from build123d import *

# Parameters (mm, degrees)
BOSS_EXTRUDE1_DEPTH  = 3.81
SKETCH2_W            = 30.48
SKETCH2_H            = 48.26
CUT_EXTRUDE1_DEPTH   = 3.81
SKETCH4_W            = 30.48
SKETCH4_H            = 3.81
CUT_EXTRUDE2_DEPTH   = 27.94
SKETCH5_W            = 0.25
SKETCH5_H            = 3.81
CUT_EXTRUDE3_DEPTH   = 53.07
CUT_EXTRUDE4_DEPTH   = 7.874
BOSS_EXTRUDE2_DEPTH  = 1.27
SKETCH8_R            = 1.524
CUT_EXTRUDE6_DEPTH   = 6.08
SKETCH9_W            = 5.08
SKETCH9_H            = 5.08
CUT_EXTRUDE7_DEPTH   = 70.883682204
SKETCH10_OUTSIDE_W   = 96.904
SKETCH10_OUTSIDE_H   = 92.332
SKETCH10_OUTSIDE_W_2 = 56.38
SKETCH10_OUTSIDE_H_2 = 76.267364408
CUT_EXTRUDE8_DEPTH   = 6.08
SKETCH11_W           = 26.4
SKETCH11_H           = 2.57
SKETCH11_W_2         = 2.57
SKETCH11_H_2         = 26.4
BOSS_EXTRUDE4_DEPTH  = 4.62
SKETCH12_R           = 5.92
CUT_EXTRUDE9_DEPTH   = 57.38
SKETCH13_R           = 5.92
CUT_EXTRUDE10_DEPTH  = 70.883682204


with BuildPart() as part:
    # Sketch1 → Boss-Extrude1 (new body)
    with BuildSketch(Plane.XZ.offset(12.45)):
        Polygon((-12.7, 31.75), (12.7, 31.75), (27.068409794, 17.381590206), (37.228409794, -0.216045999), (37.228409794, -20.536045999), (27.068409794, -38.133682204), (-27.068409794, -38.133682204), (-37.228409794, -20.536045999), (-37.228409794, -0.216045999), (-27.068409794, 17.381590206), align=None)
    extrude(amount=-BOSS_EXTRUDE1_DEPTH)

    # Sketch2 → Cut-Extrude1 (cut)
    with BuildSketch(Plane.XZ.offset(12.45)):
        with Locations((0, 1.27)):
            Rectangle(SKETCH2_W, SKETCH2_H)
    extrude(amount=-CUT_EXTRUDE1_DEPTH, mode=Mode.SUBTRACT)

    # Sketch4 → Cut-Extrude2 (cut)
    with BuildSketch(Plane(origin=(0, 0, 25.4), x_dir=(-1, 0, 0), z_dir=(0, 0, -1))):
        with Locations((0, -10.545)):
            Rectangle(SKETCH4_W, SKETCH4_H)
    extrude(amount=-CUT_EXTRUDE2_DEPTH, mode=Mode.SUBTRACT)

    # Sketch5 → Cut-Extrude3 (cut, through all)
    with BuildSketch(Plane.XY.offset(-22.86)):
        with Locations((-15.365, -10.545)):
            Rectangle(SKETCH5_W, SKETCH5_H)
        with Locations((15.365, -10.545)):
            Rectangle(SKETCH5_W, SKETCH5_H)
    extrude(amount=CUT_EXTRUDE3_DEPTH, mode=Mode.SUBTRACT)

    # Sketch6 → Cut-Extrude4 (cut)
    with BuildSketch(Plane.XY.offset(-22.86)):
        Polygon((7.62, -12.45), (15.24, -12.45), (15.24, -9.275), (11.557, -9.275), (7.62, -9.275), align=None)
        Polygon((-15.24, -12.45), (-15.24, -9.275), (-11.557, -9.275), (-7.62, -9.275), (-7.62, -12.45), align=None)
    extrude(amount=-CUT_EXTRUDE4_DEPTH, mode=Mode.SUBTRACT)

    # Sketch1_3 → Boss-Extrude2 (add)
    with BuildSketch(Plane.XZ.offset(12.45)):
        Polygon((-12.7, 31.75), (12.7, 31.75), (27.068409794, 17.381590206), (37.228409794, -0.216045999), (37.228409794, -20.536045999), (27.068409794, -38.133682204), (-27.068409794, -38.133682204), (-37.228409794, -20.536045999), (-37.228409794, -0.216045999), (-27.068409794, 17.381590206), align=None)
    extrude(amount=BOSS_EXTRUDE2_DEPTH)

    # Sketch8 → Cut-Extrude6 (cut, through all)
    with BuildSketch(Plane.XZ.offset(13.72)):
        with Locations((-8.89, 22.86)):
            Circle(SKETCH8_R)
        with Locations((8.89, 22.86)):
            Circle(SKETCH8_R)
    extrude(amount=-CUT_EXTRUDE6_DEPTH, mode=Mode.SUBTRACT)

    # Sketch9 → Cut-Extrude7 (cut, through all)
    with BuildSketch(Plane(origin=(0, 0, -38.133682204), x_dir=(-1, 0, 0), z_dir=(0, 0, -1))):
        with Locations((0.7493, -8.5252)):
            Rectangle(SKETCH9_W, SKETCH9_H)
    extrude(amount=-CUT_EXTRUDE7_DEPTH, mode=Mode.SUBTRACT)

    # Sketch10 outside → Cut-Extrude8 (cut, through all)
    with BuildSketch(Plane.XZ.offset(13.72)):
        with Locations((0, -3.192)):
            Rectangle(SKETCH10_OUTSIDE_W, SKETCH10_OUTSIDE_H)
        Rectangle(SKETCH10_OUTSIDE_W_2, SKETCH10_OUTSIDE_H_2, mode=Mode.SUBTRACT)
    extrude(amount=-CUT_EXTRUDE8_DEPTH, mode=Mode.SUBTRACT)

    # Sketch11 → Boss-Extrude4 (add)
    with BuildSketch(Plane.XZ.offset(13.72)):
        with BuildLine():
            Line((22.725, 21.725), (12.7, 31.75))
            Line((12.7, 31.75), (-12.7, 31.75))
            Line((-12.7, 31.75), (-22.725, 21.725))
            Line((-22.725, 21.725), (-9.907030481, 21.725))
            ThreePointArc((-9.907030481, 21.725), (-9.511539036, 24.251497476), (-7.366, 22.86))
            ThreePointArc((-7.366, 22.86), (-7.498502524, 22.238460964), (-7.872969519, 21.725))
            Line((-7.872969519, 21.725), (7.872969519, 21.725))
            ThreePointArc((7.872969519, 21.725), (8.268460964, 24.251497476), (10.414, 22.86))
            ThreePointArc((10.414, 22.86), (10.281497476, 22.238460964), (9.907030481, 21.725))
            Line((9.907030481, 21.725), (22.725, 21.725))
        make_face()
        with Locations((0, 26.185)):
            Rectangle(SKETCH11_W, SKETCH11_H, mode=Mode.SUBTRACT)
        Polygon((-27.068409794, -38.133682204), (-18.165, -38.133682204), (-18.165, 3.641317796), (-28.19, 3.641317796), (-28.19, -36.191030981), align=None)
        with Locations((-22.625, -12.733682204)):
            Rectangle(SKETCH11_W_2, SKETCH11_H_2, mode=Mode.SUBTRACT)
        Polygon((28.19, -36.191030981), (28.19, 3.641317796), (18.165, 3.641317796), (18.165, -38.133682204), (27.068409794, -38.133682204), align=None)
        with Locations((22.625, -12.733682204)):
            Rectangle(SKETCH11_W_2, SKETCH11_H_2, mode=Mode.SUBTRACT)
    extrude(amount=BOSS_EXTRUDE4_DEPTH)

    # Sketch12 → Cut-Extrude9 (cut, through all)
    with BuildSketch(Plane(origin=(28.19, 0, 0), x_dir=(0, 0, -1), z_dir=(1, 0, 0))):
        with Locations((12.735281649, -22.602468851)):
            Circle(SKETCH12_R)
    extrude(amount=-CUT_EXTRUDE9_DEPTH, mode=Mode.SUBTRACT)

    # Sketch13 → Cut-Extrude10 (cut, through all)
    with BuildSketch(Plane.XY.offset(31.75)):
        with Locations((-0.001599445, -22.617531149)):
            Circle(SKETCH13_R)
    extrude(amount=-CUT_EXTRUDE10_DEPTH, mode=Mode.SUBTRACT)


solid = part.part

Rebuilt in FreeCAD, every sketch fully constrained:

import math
import FreeCAD as App
import Part
import Sketcher

V = App.Vector
Q = App.Units.Quantity


def add_polygon(sketch, points):
    """Adds a closed chain of lines whose ends are joined by coincident constraints."""
    first, n = sketch.GeometryCount, len(points)
    for a, b in zip(points, points[1:] + points[:1]):
        sketch.addGeometry(Part.LineSegment(App.Vector(*a, 0), App.Vector(*b, 0)), False)
    for i in range(n):
        sketch.addConstraint(Sketcher.Constraint("Coincident", first + i, 2, first + (i + 1) % n, 1))

doc = App.newDocument("Part")
params = doc.addObject("Spreadsheet::Sheet", "Params")
for row, (alias, value) in enumerate([
    ("sketch1_width", "1 in"),
    ("sketch1_height", "0.8 in"),
    ("sketch1_length", "0.8 in"),
    ("pad1_length", "0.15 in"),
    ("sketch2_width", "1.2 in"),
    ("sketch2_height", "1.9 in"),
    ("pocket1_length", "0.15 in"),
    ("sketch3_width", "1.2 in"),
    ("sketch3_height", "0.15 in"),
    ("pocket2_length", "1.1 in"),
    ("sketch4_height", "0.15 in"),
    ("sketch5_width", "0.3 in"),
    ("sketch5_height", "0.125 in"),
    ("pocket4_length", "0.31 in"),
    ("sketch6_width", "1 in"),
    ("sketch6_height", "0.8 in"),
    ("sketch6_length", "0.8 in"),
    ("pad2_length", "0.05 in"),
    ("sketch7_diameter", "0.12 in"),
    ("sketch8_width", "0.2 in"),
    ("sketch10_width", "1 in"),
    ("sketch10_radius", "0.06 in"),
    ("pad3_length", "4.62 mm"),
], start=1):
    params.set(f"A{row}", alias)
    params.set(f"B{row}", "=" + value)
    params.setAlias(f"B{row}", alias)

body = doc.addObject("PartDesign::Body", "Body")

sketch1 = body.newObject("Sketcher::SketchObject", "Sketch")
sketch1.AttachmentSupport = (doc.getObject("XZ_Plane"), [""])
sketch1.MapMode = "FlatFace"
sketch1.AttachmentOffset = App.Placement(V(0, 0, 12.45), App.Rotation())
add_polygon(sketch1, [(12.7, 31.75), (-12.7, 31.75), (-27.06841, 17.38159), (-37.22841, -0.216046), (-37.22841, -20.536046), (-27.06841, -38.133682), (27.06841, -38.133682), (37.22841, -20.536046), (37.22841, -0.216046), (27.06841, 17.38159)])
sketch1.addConstraint([
    Sketcher.Constraint("Horizontal", 0),
    Sketcher.Constraint("Vertical", 3),
    Sketcher.Constraint("Horizontal", 5),
    Sketcher.Constraint("Vertical", 7),
    Sketcher.Constraint("Symmetric", 3, 2, 6, 2, -2),
    Sketcher.Constraint("Symmetric", 1, 2, 8, 2, -2),
    Sketcher.Constraint("Parallel", 2, 6),
    Sketcher.Constraint("Parallel", 4, 8),
    Sketcher.Constraint("Perpendicular", 1, 9),
    Sketcher.Constraint("Horizontal", 2, 2, 7, 2),
    Sketcher.Constraint("Vertical", 1, 2, 4, 2),
    Sketcher.Constraint("Equal", 1, 2),
    Sketcher.Constraint("Equal", 8, 9),
    Sketcher.Constraint("DistanceX", 0, 2, 0, 1, Q("1 in")),
    Sketcher.Constraint("DistanceY", 3, 2, 3, 1, Q("0.8 in")),
    Sketcher.Constraint("Angle", 2, Q("-120 deg")),
    Sketcher.Constraint("Distance", 1, Q("0.8 in")),
    Sketcher.Constraint("DistanceY", -1, 1, 0, 2, Q("1.25 in")),
])
sketch1.setExpression("Constraints[23]", "Params.sketch1_width")
sketch1.setExpression("Constraints[24]", "Params.sketch1_height")
sketch1.setExpression("Constraints[26]", "Params.sketch1_length")
pad1 = body.newObject("PartDesign::Pad", "Pad")
pad1.Profile = sketch1
pad1.setExpression("Length", "Params.pad1_length")
pad1.Reversed = True

sketch2 = body.newObject("Sketcher::SketchObject", "Sketch001")
sketch2.AttachmentSupport = (doc.getObject("XZ_Plane"), [""])
sketch2.MapMode = "FlatFace"
sketch2.AttachmentOffset = App.Placement(V(0, 0, 12.45), App.Rotation())
add_polygon(sketch2, [(-15.24, 25.4), (-15.24, -22.86), (15.24, -22.86), (15.24, 25.4)])
sketch2.addConstraint([
    Sketcher.Constraint("Vertical", 0),
    Sketcher.Constraint("Horizontal", 1),
    Sketcher.Constraint("Vertical", 2),
    Sketcher.Constraint("Horizontal", 3),
    Sketcher.Constraint("DistanceX", 1, 1, 1, 2, Q("1.2 in")),
    Sketcher.Constraint("DistanceY", 0, 2, 0, 1, Q("1.9 in")),
    Sketcher.Constraint("DistanceY", -1, 1, 2, 2, Q("1 in")),
    Sketcher.Constraint("DistanceX", 0, 2, -1, 1, Q("0.6 in")),
])
sketch2.setExpression("Constraints[8]", "Params.sketch2_width")
sketch2.setExpression("Constraints[9]", "Params.sketch2_height")
pocket1 = body.newObject("PartDesign::Pocket", "Pocket")
pocket1.Profile = sketch2
pocket1.setExpression("Length", "Params.pocket1_length")

sketch3 = body.newObject("Sketcher::SketchObject", "Sketch002")
sketch3.AttachmentSupport = (doc.getObject("XY_Plane"), [""])
sketch3.MapMode = "FlatFace"
sketch3.AttachmentOffset = App.Placement(V(0, 0, 1 * 25.4), App.Rotation())
add_polygon(sketch3, [(15.24, -8.64), (15.24, -12.45), (-15.24, -12.45), (-15.24, -8.64)])
sketch3.addConstraint([
    Sketcher.Constraint("Vertical", 0),
    Sketcher.Constraint("Horizontal", 1),
    Sketcher.Constraint("Vertical", 2),
    Sketcher.Constraint("Horizontal", 3),
    Sketcher.Constraint("DistanceX", 1, 2, 1, 1, Q("1.2 in")),
    Sketcher.Constraint("DistanceY", 0, 2, 0, 1, Q("0.15 in")),
    Sketcher.Constraint("DistanceX", -1, 1, 0, 2, Q("0.6 in")),
    Sketcher.Constraint("DistanceY", 0, 2, -1, 1, 12.45),
])
sketch3.setExpression("Constraints[8]", "Params.sketch3_width")
sketch3.setExpression("Constraints[9]", "Params.sketch3_height")
pocket2 = body.newObject("PartDesign::Pocket", "Pocket001")
pocket2.Profile = sketch3
pocket2.setExpression("Length", "Params.pocket2_length")
pocket2.Reversed = True

sketch4 = body.newObject("Sketcher::SketchObject", "Sketch003")
sketch4.AttachmentSupport = (doc.getObject("XY_Plane"), [""])
sketch4.MapMode = "FlatFace"
sketch4.AttachmentOffset = App.Placement(V(0, 0, -0.9 * 25.4), App.Rotation())
add_polygon(sketch4, [(-15.49, -8.64), (-15.49, -12.45), (-15.24, -12.45), (-15.24, -8.64)])
add_polygon(sketch4, [(15.24, -8.64), (15.24, -12.45), (15.49, -12.45), (15.49, -8.64)])
sketch4.addConstraint([
    Sketcher.Constraint("Vertical", 0),
    Sketcher.Constraint("Horizontal", 1),
    Sketcher.Constraint("Vertical", 2),
    Sketcher.Constraint("Horizontal", 3),
    Sketcher.Constraint("Vertical", 4),
    Sketcher.Constraint("Horizontal", 5),
    Sketcher.Constraint("Vertical", 6),
    Sketcher.Constraint("Horizontal", 7),
    Sketcher.Constraint("Symmetric", 1, 2, 4, 2, -2),
    Sketcher.Constraint("Symmetric", 3, 2, 6, 2, -2),
    Sketcher.Constraint("DistanceY", 0, 2, 0, 1, Q("0.15 in")),
    Sketcher.Constraint("DistanceX", 1, 2, -1, 1, Q("0.6 in")),
    Sketcher.Constraint("DistanceX", 1, 1, 1, 2, 0.25),
    Sketcher.Constraint("DistanceY", 0, 2, -1, 1, 12.45),
])
sketch4.setExpression("Constraints[18]", "Params.sketch4_height")
pocket3 = body.newObject("PartDesign::Pocket", "Pocket002")
pocket3.Profile = sketch4
pocket3.Type = "ThroughAll"
pocket3.Reversed = True

sketch5 = body.newObject("Sketcher::SketchObject", "Sketch004")
sketch5.AttachmentSupport = (doc.getObject("XY_Plane"), [""])
sketch5.MapMode = "FlatFace"
sketch5.AttachmentOffset = App.Placement(V(0, 0, -0.9 * 25.4), App.Rotation())
add_polygon(sketch5, [(7.62, -12.45), (15.24, -12.45), (15.24, -9.275), (7.62, -9.275)])
add_polygon(sketch5, [(-15.24, -9.275), (-15.24, -12.45), (-7.62, -12.45), (-7.62, -9.275)])
sketch5.addConstraint([
    Sketcher.Constraint("Horizontal", 0),
    Sketcher.Constraint("Vertical", 1),
    Sketcher.Constraint("Horizontal", 2),
    Sketcher.Constraint("Vertical", 3),
    Sketcher.Constraint("Vertical", 4),
    Sketcher.Constraint("Horizontal", 5),
    Sketcher.Constraint("Vertical", 6),
    Sketcher.Constraint("Horizontal", 7),
    Sketcher.Constraint("Symmetric", 0, 2, 4, 2, -2),
    Sketcher.Constraint("Symmetric", 2, 2, 6, 2, -2),
    Sketcher.Constraint("DistanceX", 0, 1, 0, 2, Q("0.3 in")),
    Sketcher.Constraint("DistanceX", -1, 1, 0, 2, Q("0.6 in")),
    Sketcher.Constraint("DistanceY", 1, 1, 1, 2, Q("0.125 in")),
    Sketcher.Constraint("DistanceY", 0, 2, -1, 1, 12.45),
])
sketch5.setExpression("Constraints[18]", "Params.sketch5_width")
sketch5.setExpression("Constraints[20]", "Params.sketch5_height")
pocket4 = body.newObject("PartDesign::Pocket", "Pocket003")
pocket4.Profile = sketch5
pocket4.setExpression("Length", "Params.pocket4_length")

sketch6 = body.newObject("Sketcher::SketchObject", "Sketch005")
sketch6.AttachmentSupport = (doc.getObject("XZ_Plane"), [""])
sketch6.MapMode = "FlatFace"
sketch6.AttachmentOffset = App.Placement(V(0, 0, 12.45), App.Rotation())
add_polygon(sketch6, [(12.7, 31.75), (-12.7, 31.75), (-27.06841, 17.38159), (-37.22841, -0.216046), (-37.22841, -20.536046), (-27.06841, -38.133682), (27.06841, -38.133682), (37.22841, -20.536046), (37.22841, -0.216046), (27.06841, 17.38159)])
sketch6.addConstraint([
    Sketcher.Constraint("Horizontal", 0),
    Sketcher.Constraint("Vertical", 3),
    Sketcher.Constraint("Horizontal", 5),
    Sketcher.Constraint("Vertical", 7),
    Sketcher.Constraint("Symmetric", 3, 2, 6, 2, -2),
    Sketcher.Constraint("Symmetric", 1, 2, 8, 2, -2),
    Sketcher.Constraint("Parallel", 2, 6),
    Sketcher.Constraint("Parallel", 4, 8),
    Sketcher.Constraint("Perpendicular", 1, 9),
    Sketcher.Constraint("Horizontal", 2, 2, 7, 2),
    Sketcher.Constraint("Vertical", 1, 2, 4, 2),
    Sketcher.Constraint("Equal", 1, 2),
    Sketcher.Constraint("Equal", 8, 9),
    Sketcher.Constraint("DistanceX", 0, 2, 0, 1, Q("1 in")),
    Sketcher.Constraint("DistanceY", 3, 2, 3, 1, Q("0.8 in")),
    Sketcher.Constraint("Angle", 2, Q("-120 deg")),
    Sketcher.Constraint("Distance", 1, Q("0.8 in")),
    Sketcher.Constraint("DistanceY", -1, 1, 0, 2, Q("1.25 in")),
])
sketch6.setExpression("Constraints[23]", "Params.sketch6_width")
sketch6.setExpression("Constraints[24]", "Params.sketch6_height")
sketch6.setExpression("Constraints[26]", "Params.sketch6_length")
pad2 = body.newObject("PartDesign::Pad", "Pad001")
pad2.Profile = sketch6
pad2.setExpression("Length", "Params.pad2_length")

sketch7 = body.newObject("Sketcher::SketchObject", "Sketch006")
sketch7.AttachmentSupport = (doc.getObject("XZ_Plane"), [""])
sketch7.MapMode = "FlatFace"
sketch7.AttachmentOffset = App.Placement(V(0, 0, 13.72), App.Rotation())
sketch7.addGeometry([
    Part.Circle(V(-8.89, 22.86, 0), V(0, 0, 1), 1.524),
    Part.Circle(V(8.89, 22.86, 0), V(0, 0, 1), 1.524),
], False)
sketch7.addConstraint([
    Sketcher.Constraint("Equal", 0, 1),
    Sketcher.Constraint("Symmetric", 0, 3, 1, 3, -2),
    Sketcher.Constraint("Diameter", 0, Q("0.12 in")),
    Sketcher.Constraint("DistanceY", -1, 1, 0, 3, Q("0.9 in")),
    Sketcher.Constraint("DistanceX", 0, 3, 1, 3, Q("0.7 in")),
])
sketch7.setExpression("Constraints[2]", "Params.sketch7_diameter")
pocket5 = body.newObject("PartDesign::Pocket", "Pocket004")
pocket5.Profile = sketch7
pocket5.Type = "ThroughAll"

sketch8 = body.newObject("Sketcher::SketchObject", "Sketch007")
sketch8.AttachmentSupport = (doc.getObject("XY_Plane"), [""])
sketch8.MapMode = "FlatFace"
sketch8.AttachmentOffset = App.Placement(V(0, 0, -38.133682), App.Rotation())
add_polygon(sketch8, [(1.7907, -5.9852), (1.7907, -11.0652), (-3.2893, -11.0652), (-3.2893, -5.9852)])
sketch8.addConstraint([
    Sketcher.Constraint("Vertical", 0),
    Sketcher.Constraint("Horizontal", 1),
    Sketcher.Constraint("Vertical", 2),
    Sketcher.Constraint("Horizontal", 3),
    Sketcher.Constraint("Equal", 3, 0),
    Sketcher.Constraint("DistanceX", 1, 2, 1, 1, Q("0.2 in")),
    Sketcher.Constraint("DistanceX", -1, 1, 0, 2, Q("0.0705 in")),
    Sketcher.Constraint("DistanceY", 0, 2, -1, 1, 11.0652),
])
sketch8.setExpression("Constraints[9]", "Params.sketch8_width")
pocket6 = body.newObject("PartDesign::Pocket", "Pocket005")
pocket6.Profile = sketch8
pocket6.Type = "ThroughAll"
pocket6.Reversed = True

sketch9 = body.newObject("Sketcher::SketchObject", "Sketch008")
sketch9.AttachmentSupport = (doc.getObject("XZ_Plane"), [""])
sketch9.MapMode = "FlatFace"
sketch9.AttachmentOffset = App.Placement(V(0, 0, 13.72), App.Rotation())
add_polygon(sketch9, [(-48.452, 42.974), (-48.452, -49.358), (48.452, -49.358), (48.452, 42.974)])
add_polygon(sketch9, [(28.19, -38.133682), (-28.19, -38.133682), (-28.19, 38.133682), (28.19, 38.133682)])
sketch9.addConstraint([
    Sketcher.Constraint("Vertical", 0),
    Sketcher.Constraint("Horizontal", 1),
    Sketcher.Constraint("Vertical", 2),
    Sketcher.Constraint("Horizontal", 3),
    Sketcher.Constraint("Horizontal", 4),
    Sketcher.Constraint("Vertical", 5),
    Sketcher.Constraint("Horizontal", 6),
    Sketcher.Constraint("Vertical", 7),
    Sketcher.Constraint("Symmetric", 4, 2, 6, 2, -1, 1),
    Sketcher.Constraint("DistanceX", 1, 1, 1, 2, 96.904),
    Sketcher.Constraint("DistanceX", 4, 2, 4, 1, 56.38),
    Sketcher.Constraint("DistanceY", 0, 2, 0, 1, 92.332),
    Sketcher.Constraint("DistanceX", 0, 2, -1, 1, 48.452),
    Sketcher.Constraint("DistanceY", 0, 2, -1, 1, 49.358),
    Sketcher.Constraint("DistanceY", 5, 1, 5, 2, 76.267364),
])
pocket7 = body.newObject("PartDesign::Pocket", "Pocket006")
pocket7.Profile = sketch9
pocket7.Type = "ThroughAll"

sketch10 = body.newObject("Sketcher::SketchObject", "Sketch009")
sketch10.AttachmentSupport = (doc.getObject("XZ_Plane"), [""])
sketch10.MapMode = "FlatFace"
sketch10.AttachmentOffset = App.Placement(V(0, 0, 13.72), App.Rotation())
sketch10.addGeometry(Part.LineSegment(V(22.725, 21.725, 0), V(12.7, 31.75, 0)), False)
sketch10.addGeometry(Part.LineSegment(V(12.7, 31.75, 0), V(-12.7, 31.75, 0)), False)
sketch10.addGeometry(Part.LineSegment(V(-12.7, 31.75, 0), V(-22.725, 21.725, 0)), False)
sketch10.addGeometry(Part.LineSegment(V(-22.725, 21.725, 0), V(-9.90703, 21.725, 0)), False)
sketch10.addGeometry(Part.ArcOfCircle(Part.Circle(V(-8.89, 22.86, 0), V(0, 0, 1), 1.524), math.radians(0), math.radians(228.137687)), False)
sketch10.addGeometry(Part.ArcOfCircle(Part.Circle(V(-8.89, 22.86, 0), V(0, 0, 1), 1.524), math.radians(-48.137687), math.radians(0)), False)
sketch10.addGeometry(Part.LineSegment(V(-7.87297, 21.725, 0), V(7.87297, 21.725, 0)), False)
sketch10.addGeometry(Part.ArcOfCircle(Part.Circle(V(8.89, 22.86, 0), V(0, 0, 1), 1.524), math.radians(0), math.radians(228.137687)), False)
sketch10.addGeometry(Part.ArcOfCircle(Part.Circle(V(8.89, 22.86, 0), V(0, 0, 1), 1.524), math.radians(-48.137687), math.radians(0)), False)
sketch10.addGeometry(Part.LineSegment(V(9.90703, 21.725, 0), V(22.725, 21.725, 0)), False)
add_polygon(sketch10, [(13.2, 24.9), (-13.2, 24.9), (-13.2, 27.47), (13.2, 27.47)])
add_polygon(sketch10, [(-27.06841, -38.133682), (-18.165, -38.133682), (-18.165, 3.641318), (-28.19, 3.641318), (-28.19, -36.191031)])
add_polygon(sketch10, [(-21.34, -25.933682), (-23.91, -25.933682), (-23.91, 0.466318), (-21.34, 0.466318)])
add_polygon(sketch10, [(28.19, -36.191031), (28.19, 3.641318), (18.165, 3.641318), (18.165, -38.133682), (27.06841, -38.133682)])
add_polygon(sketch10, [(23.91, -25.933682), (21.34, -25.933682), (21.34, 0.466318), (23.91, 0.466318)])
sketch10.addConstraint([
    Sketcher.Constraint("Coincident", 0, 2, 1, 1),
    Sketcher.Constraint("Coincident", 1, 2, 2, 1),
    Sketcher.Constraint("Coincident", 2, 2, 3, 1),
    Sketcher.Constraint("Coincident", 3, 2, 4, 2),
    Sketcher.Constraint("Tangent", 4, 1, 5, 2),
    Sketcher.Constraint("Coincident", 5, 1, 6, 1),
    Sketcher.Constraint("Coincident", 6, 2, 7, 2),
    Sketcher.Constraint("Tangent", 7, 1, 8, 2),
    Sketcher.Constraint("Coincident", 8, 1, 9, 1),
    Sketcher.Constraint("Coincident", 9, 2, 0, 1),
    Sketcher.Constraint("Horizontal", 1),
    Sketcher.Constraint("Horizontal", 3),
    Sketcher.Constraint("Horizontal", 6),
    Sketcher.Constraint("Horizontal", 9),
    Sketcher.Constraint("Horizontal", 10),
    Sketcher.Constraint("Vertical", 11),
    Sketcher.Constraint("Horizontal", 12),
    Sketcher.Constraint("Vertical", 13),
    Sketcher.Constraint("Horizontal", 14),
    Sketcher.Constraint("Vertical", 15),
    Sketcher.Constraint("Horizontal", 16),
    Sketcher.Constraint("Vertical", 17),
    Sketcher.Constraint("Horizontal", 19),
    Sketcher.Constraint("Vertical", 20),
    Sketcher.Constraint("Horizontal", 21),
    Sketcher.Constraint("Vertical", 22),
    Sketcher.Constraint("Vertical", 23),
    Sketcher.Constraint("Horizontal", 24),
    Sketcher.Constraint("Vertical", 25),
    Sketcher.Constraint("Horizontal", 26),
    Sketcher.Constraint("Horizontal", 28),
    Sketcher.Constraint("Vertical", 29),
    Sketcher.Constraint("Horizontal", 30),
    Sketcher.Constraint("Vertical", 31),
    Sketcher.Constraint("Equal", 4, 5),
    Sketcher.Constraint("Equal", 5, 7),
    Sketcher.Constraint("Equal", 7, 8),
    Sketcher.Constraint("Symmetric", 4, 3, 7, 3, -2),
    Sketcher.Constraint("Symmetric", 2, 2, 9, 2, -2),
    Sketcher.Constraint("Symmetric", 16, 2, 23, 2, -2),
    Sketcher.Constraint("Symmetric", 14, 2, 25, 2, -2),
    Sketcher.Constraint("Symmetric", 22, 2, 28, 2, -2),
    Sketcher.Constraint("Symmetric", 20, 2, 30, 2, -2),
    Sketcher.Constraint("Perpendicular", 0, 2),
    Sketcher.Constraint("Horizontal", 8, 3, 4, 1),
    Sketcher.Constraint("Horizontal", 3, 2, 5, 1),
    Sketcher.Constraint("Horizontal", 4, 1, 7, 1),
    Sketcher.Constraint("Horizontal", 17, 2, 27, 2),
    Sketcher.Constraint("Equal", 14, 26),
    Sketcher.Constraint("Equal", 30, 11),
    Sketcher.Constraint("Equal", 12, 20),
    Sketcher.Constraint("Equal", 0, 2),
    Sketcher.Constraint("DistanceX", 1, 2, 1, 1, Q("1 in")),
    Sketcher.Constraint("Radius", 4, Q("0.06 in")),
    Sketcher.Constraint("Angle", 18, Q("-60 deg")),
    Sketcher.Constraint("DistanceY", -1, 1, 4, 3, Q("0.9 in")),
    Sketcher.Constraint("DistanceX", 4, 3, 7, 3, Q("0.7 in")),
    Sketcher.Constraint("DistanceY", -1, 1, 0, 2, Q("1.25 in")),
    Sketcher.Constraint("DistanceY", 3, 2, 10, 2, Q("0.125 in")),
    Sketcher.Constraint("DistanceY", 20, 2, 16, 2, Q("0.125 in")),
    Sketcher.Constraint("DistanceX", 21, 2, 15, 2, Q("0.125 in")),
    Sketcher.Constraint("DistanceX", 14, 2, 27, 2, Q("1.825 in")),
    Sketcher.Constraint("DistanceX", 10, 2, 10, 1, 26.4),
    Sketcher.Constraint("DistanceX", 16, 2, 16, 1, 10.025),
    Sketcher.Constraint("DistanceX", 19, 2, 19, 1, 2.57),
    Sketcher.Constraint("DistanceY", 15, 1, 15, 2, 41.775),
    Sketcher.Constraint("DistanceX", 3, 1, 3, 2, 12.81797),
    Sketcher.Constraint("DistanceX", 14, 1, 14, 2, 8.90341),
    Sketcher.Constraint("DistanceX", 10, 2, -1, 1, 13.2),
    Sketcher.Constraint("DistanceY", 17, 2, -1, 1, 36.191031),
])
sketch10.setExpression("Constraints[74]", "Params.sketch10_width")
sketch10.setExpression("Constraints[75]", "Params.sketch10_radius")
pad3 = body.newObject("PartDesign::Pad", "Pad002")
pad3.Profile = sketch10
pad3.setExpression("Length", "Params.pad3_length")

sketch11 = body.newObject("Sketcher::SketchObject", "Sketch010")
sketch11.AttachmentSupport = (doc.getObject("YZ_Plane"), [""])
sketch11.MapMode = "FlatFace"
sketch11.AttachmentOffset = App.Placement(V(0, 0, 28.19), App.Rotation())
sketch11.addGeometry(Part.Circle(V(-22.602469, -12.735282, 0), V(0, 0, 1), 5.92), False)
sketch11.addConstraint([
    Sketcher.Constraint("Diameter", 0, 11.84),
    Sketcher.Constraint("DistanceX", 0, 3, -1, 1, 22.602469),
    Sketcher.Constraint("DistanceY", 0, 3, -1, 1, 12.735282),
])
pocket8 = body.newObject("PartDesign::Pocket", "Pocket007")
pocket8.Profile = sketch11
pocket8.Type = "ThroughAll"

sketch12 = body.newObject("Sketcher::SketchObject", "Sketch011")
sketch12.AttachmentSupport = (doc.getObject("XY_Plane"), [""])
sketch12.MapMode = "FlatFace"
sketch12.AttachmentOffset = App.Placement(V(0, 0, 1.25 * 25.4), App.Rotation())
sketch12.addGeometry(Part.Circle(V(-0.001599, -22.617531, 0), V(0, 0, 1), 5.92), False)
sketch12.addConstraint([
    Sketcher.Constraint("Diameter", 0, 11.84),
    Sketcher.Constraint("DistanceX", 0, 3, -1, 1, 0.001599),
    Sketcher.Constraint("DistanceY", 0, 3, -1, 1, 22.617531),
])
pocket9 = body.newObject("PartDesign::Pocket", "Pocket008")
pocket9.Profile = sketch12
pocket9.Type = "ThroughAll"

doc.recompute()
